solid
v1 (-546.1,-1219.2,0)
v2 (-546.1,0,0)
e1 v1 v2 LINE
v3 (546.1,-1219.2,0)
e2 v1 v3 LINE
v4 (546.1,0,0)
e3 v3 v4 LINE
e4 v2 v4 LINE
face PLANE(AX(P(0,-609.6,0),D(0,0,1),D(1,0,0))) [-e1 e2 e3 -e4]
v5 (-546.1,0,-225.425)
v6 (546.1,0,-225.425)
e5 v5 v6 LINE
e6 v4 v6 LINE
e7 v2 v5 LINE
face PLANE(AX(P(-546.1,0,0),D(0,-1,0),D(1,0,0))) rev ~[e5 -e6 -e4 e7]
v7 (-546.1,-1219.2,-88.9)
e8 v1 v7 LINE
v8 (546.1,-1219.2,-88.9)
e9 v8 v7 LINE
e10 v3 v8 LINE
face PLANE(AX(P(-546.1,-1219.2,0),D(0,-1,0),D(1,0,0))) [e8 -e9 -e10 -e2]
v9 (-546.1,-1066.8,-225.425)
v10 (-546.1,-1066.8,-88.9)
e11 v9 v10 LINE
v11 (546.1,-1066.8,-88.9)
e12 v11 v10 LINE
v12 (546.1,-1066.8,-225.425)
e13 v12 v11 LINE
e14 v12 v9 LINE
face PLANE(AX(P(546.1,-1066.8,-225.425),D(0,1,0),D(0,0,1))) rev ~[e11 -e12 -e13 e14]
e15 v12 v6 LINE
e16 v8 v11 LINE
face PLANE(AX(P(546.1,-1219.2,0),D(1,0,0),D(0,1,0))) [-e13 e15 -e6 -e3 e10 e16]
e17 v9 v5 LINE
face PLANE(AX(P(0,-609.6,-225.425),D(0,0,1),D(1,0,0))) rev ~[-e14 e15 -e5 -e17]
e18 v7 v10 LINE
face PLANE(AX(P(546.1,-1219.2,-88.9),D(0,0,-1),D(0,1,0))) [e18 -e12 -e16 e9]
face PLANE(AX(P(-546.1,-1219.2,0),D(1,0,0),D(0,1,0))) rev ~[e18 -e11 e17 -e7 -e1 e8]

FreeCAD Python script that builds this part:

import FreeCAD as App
import Part
import Sketcher
Q = App.Units.Quantity

doc = App.newDocument("Part")
body = doc.addObject("PartDesign::Body", "Body")

# Sketch on XY plane
sketch1 = body.newObject("Sketcher::SketchObject", "Sketch")
sketch1.AttachmentSupport = (doc.getObject("XY_Plane"), [""])
sketch1.MapMode = "FlatFace"
sketch1.addGeometry([
    Part.LineSegment(App.Vector(-546, 0, 0), App.Vector(-546, -1219, 0)),
    Part.LineSegment(App.Vector(-546, -1219, 0), App.Vector(546, -1219, 0)),
    Part.LineSegment(App.Vector(546, -1219, 0), App.Vector(546, 0, 0)),
    Part.LineSegment(App.Vector(546, 0, 0), App.Vector(-546, 0, 0)),
], False)
sketch1.addConstraint([
    Sketcher.Constraint("Coincident", 0, 2, 1, 1),
    Sketcher.Constraint("Coincident", 1, 2, 2, 1),
    Sketcher.Constraint("Coincident", 2, 2, 3, 1),
    Sketcher.Constraint("Coincident", 3, 2, 0, 1),
    Sketcher.Constraint("Vertical", 0),
    Sketcher.Constraint("Horizontal", 1),
    Sketcher.Constraint("Vertical", 2),
    Sketcher.Constraint("Horizontal", 3),
    Sketcher.Constraint("Symmetric", 2, 2, 3, 2, -1, 1),
    Sketcher.Constraint("DistanceX", 1, 1, 1, 2, Q("43 in")),
    Sketcher.Constraint("DistanceY", 0, 2, 0, 1, Q("48 in")),
])
pad1 = body.newObject("PartDesign::Pad", "Pad")
pad1.Profile = sketch1
pad1.Length = Q("8.875 in")
pad1.Reversed = True

# Sketch on YZ plane
sketch2 = body.newObject("Sketcher::SketchObject", "Sketch001")
sketch2.AttachmentSupport = (doc.getObject("YZ_Plane"), [""])
sketch2.MapMode = "FlatFace"
sketch2.AttachmentOffset = App.Placement(App.Vector(0, 0, 21.5 * 25.4), App.Rotation())
sketch2.addGeometry([
    Part.LineSegment(App.Vector(-1219, -89, 0), App.Vector(-1219, -225, 0)),
    Part.LineSegment(App.Vector(-1219, -225, 0), App.Vector(-1067, -225, 0)),
    Part.LineSegment(App.Vector(-1067, -225, 0), App.Vector(-1067, -89, 0)),
    Part.LineSegment(App.Vector(-1067, -89, 0), App.Vector(-1219, -89, 0)),
], False)
sketch2.addConstraint([
    Sketcher.Constraint("Coincident", 0, 2, 1, 1),
    Sketcher.Constraint("Coincident", 1, 2, 2, 1),
    Sketcher.Constraint("Coincident", 2, 2, 3, 1),
    Sketcher.Constraint("Coincident", 3, 2, 0, 1),
    Sketcher.Constraint("Vertical", 0),
    Sketcher.Constraint("Horizontal", 1),
    Sketcher.Constraint("Vertical", 2),
    Sketcher.Constraint("Horizontal", 3),
    Sketcher.Constraint("DistanceX", 1, 1, 1, 2, Q("6 in")),
    Sketcher.Constraint("DistanceX", 0, 2, -1, 1, Q("48 in")),
    Sketcher.Constraint("DistanceY", 2, 2, -1, 1, Q("3.5 in")),
    Sketcher.Constraint("DistanceY", 0, 2, 0, 1, Q("5.375 in")),
])
pocket1 = body.newObject("PartDesign::Pocket", "Pocket")
pocket1.Profile = sketch2
pocket1.Type = "ThroughAll"

doc.recompute()
